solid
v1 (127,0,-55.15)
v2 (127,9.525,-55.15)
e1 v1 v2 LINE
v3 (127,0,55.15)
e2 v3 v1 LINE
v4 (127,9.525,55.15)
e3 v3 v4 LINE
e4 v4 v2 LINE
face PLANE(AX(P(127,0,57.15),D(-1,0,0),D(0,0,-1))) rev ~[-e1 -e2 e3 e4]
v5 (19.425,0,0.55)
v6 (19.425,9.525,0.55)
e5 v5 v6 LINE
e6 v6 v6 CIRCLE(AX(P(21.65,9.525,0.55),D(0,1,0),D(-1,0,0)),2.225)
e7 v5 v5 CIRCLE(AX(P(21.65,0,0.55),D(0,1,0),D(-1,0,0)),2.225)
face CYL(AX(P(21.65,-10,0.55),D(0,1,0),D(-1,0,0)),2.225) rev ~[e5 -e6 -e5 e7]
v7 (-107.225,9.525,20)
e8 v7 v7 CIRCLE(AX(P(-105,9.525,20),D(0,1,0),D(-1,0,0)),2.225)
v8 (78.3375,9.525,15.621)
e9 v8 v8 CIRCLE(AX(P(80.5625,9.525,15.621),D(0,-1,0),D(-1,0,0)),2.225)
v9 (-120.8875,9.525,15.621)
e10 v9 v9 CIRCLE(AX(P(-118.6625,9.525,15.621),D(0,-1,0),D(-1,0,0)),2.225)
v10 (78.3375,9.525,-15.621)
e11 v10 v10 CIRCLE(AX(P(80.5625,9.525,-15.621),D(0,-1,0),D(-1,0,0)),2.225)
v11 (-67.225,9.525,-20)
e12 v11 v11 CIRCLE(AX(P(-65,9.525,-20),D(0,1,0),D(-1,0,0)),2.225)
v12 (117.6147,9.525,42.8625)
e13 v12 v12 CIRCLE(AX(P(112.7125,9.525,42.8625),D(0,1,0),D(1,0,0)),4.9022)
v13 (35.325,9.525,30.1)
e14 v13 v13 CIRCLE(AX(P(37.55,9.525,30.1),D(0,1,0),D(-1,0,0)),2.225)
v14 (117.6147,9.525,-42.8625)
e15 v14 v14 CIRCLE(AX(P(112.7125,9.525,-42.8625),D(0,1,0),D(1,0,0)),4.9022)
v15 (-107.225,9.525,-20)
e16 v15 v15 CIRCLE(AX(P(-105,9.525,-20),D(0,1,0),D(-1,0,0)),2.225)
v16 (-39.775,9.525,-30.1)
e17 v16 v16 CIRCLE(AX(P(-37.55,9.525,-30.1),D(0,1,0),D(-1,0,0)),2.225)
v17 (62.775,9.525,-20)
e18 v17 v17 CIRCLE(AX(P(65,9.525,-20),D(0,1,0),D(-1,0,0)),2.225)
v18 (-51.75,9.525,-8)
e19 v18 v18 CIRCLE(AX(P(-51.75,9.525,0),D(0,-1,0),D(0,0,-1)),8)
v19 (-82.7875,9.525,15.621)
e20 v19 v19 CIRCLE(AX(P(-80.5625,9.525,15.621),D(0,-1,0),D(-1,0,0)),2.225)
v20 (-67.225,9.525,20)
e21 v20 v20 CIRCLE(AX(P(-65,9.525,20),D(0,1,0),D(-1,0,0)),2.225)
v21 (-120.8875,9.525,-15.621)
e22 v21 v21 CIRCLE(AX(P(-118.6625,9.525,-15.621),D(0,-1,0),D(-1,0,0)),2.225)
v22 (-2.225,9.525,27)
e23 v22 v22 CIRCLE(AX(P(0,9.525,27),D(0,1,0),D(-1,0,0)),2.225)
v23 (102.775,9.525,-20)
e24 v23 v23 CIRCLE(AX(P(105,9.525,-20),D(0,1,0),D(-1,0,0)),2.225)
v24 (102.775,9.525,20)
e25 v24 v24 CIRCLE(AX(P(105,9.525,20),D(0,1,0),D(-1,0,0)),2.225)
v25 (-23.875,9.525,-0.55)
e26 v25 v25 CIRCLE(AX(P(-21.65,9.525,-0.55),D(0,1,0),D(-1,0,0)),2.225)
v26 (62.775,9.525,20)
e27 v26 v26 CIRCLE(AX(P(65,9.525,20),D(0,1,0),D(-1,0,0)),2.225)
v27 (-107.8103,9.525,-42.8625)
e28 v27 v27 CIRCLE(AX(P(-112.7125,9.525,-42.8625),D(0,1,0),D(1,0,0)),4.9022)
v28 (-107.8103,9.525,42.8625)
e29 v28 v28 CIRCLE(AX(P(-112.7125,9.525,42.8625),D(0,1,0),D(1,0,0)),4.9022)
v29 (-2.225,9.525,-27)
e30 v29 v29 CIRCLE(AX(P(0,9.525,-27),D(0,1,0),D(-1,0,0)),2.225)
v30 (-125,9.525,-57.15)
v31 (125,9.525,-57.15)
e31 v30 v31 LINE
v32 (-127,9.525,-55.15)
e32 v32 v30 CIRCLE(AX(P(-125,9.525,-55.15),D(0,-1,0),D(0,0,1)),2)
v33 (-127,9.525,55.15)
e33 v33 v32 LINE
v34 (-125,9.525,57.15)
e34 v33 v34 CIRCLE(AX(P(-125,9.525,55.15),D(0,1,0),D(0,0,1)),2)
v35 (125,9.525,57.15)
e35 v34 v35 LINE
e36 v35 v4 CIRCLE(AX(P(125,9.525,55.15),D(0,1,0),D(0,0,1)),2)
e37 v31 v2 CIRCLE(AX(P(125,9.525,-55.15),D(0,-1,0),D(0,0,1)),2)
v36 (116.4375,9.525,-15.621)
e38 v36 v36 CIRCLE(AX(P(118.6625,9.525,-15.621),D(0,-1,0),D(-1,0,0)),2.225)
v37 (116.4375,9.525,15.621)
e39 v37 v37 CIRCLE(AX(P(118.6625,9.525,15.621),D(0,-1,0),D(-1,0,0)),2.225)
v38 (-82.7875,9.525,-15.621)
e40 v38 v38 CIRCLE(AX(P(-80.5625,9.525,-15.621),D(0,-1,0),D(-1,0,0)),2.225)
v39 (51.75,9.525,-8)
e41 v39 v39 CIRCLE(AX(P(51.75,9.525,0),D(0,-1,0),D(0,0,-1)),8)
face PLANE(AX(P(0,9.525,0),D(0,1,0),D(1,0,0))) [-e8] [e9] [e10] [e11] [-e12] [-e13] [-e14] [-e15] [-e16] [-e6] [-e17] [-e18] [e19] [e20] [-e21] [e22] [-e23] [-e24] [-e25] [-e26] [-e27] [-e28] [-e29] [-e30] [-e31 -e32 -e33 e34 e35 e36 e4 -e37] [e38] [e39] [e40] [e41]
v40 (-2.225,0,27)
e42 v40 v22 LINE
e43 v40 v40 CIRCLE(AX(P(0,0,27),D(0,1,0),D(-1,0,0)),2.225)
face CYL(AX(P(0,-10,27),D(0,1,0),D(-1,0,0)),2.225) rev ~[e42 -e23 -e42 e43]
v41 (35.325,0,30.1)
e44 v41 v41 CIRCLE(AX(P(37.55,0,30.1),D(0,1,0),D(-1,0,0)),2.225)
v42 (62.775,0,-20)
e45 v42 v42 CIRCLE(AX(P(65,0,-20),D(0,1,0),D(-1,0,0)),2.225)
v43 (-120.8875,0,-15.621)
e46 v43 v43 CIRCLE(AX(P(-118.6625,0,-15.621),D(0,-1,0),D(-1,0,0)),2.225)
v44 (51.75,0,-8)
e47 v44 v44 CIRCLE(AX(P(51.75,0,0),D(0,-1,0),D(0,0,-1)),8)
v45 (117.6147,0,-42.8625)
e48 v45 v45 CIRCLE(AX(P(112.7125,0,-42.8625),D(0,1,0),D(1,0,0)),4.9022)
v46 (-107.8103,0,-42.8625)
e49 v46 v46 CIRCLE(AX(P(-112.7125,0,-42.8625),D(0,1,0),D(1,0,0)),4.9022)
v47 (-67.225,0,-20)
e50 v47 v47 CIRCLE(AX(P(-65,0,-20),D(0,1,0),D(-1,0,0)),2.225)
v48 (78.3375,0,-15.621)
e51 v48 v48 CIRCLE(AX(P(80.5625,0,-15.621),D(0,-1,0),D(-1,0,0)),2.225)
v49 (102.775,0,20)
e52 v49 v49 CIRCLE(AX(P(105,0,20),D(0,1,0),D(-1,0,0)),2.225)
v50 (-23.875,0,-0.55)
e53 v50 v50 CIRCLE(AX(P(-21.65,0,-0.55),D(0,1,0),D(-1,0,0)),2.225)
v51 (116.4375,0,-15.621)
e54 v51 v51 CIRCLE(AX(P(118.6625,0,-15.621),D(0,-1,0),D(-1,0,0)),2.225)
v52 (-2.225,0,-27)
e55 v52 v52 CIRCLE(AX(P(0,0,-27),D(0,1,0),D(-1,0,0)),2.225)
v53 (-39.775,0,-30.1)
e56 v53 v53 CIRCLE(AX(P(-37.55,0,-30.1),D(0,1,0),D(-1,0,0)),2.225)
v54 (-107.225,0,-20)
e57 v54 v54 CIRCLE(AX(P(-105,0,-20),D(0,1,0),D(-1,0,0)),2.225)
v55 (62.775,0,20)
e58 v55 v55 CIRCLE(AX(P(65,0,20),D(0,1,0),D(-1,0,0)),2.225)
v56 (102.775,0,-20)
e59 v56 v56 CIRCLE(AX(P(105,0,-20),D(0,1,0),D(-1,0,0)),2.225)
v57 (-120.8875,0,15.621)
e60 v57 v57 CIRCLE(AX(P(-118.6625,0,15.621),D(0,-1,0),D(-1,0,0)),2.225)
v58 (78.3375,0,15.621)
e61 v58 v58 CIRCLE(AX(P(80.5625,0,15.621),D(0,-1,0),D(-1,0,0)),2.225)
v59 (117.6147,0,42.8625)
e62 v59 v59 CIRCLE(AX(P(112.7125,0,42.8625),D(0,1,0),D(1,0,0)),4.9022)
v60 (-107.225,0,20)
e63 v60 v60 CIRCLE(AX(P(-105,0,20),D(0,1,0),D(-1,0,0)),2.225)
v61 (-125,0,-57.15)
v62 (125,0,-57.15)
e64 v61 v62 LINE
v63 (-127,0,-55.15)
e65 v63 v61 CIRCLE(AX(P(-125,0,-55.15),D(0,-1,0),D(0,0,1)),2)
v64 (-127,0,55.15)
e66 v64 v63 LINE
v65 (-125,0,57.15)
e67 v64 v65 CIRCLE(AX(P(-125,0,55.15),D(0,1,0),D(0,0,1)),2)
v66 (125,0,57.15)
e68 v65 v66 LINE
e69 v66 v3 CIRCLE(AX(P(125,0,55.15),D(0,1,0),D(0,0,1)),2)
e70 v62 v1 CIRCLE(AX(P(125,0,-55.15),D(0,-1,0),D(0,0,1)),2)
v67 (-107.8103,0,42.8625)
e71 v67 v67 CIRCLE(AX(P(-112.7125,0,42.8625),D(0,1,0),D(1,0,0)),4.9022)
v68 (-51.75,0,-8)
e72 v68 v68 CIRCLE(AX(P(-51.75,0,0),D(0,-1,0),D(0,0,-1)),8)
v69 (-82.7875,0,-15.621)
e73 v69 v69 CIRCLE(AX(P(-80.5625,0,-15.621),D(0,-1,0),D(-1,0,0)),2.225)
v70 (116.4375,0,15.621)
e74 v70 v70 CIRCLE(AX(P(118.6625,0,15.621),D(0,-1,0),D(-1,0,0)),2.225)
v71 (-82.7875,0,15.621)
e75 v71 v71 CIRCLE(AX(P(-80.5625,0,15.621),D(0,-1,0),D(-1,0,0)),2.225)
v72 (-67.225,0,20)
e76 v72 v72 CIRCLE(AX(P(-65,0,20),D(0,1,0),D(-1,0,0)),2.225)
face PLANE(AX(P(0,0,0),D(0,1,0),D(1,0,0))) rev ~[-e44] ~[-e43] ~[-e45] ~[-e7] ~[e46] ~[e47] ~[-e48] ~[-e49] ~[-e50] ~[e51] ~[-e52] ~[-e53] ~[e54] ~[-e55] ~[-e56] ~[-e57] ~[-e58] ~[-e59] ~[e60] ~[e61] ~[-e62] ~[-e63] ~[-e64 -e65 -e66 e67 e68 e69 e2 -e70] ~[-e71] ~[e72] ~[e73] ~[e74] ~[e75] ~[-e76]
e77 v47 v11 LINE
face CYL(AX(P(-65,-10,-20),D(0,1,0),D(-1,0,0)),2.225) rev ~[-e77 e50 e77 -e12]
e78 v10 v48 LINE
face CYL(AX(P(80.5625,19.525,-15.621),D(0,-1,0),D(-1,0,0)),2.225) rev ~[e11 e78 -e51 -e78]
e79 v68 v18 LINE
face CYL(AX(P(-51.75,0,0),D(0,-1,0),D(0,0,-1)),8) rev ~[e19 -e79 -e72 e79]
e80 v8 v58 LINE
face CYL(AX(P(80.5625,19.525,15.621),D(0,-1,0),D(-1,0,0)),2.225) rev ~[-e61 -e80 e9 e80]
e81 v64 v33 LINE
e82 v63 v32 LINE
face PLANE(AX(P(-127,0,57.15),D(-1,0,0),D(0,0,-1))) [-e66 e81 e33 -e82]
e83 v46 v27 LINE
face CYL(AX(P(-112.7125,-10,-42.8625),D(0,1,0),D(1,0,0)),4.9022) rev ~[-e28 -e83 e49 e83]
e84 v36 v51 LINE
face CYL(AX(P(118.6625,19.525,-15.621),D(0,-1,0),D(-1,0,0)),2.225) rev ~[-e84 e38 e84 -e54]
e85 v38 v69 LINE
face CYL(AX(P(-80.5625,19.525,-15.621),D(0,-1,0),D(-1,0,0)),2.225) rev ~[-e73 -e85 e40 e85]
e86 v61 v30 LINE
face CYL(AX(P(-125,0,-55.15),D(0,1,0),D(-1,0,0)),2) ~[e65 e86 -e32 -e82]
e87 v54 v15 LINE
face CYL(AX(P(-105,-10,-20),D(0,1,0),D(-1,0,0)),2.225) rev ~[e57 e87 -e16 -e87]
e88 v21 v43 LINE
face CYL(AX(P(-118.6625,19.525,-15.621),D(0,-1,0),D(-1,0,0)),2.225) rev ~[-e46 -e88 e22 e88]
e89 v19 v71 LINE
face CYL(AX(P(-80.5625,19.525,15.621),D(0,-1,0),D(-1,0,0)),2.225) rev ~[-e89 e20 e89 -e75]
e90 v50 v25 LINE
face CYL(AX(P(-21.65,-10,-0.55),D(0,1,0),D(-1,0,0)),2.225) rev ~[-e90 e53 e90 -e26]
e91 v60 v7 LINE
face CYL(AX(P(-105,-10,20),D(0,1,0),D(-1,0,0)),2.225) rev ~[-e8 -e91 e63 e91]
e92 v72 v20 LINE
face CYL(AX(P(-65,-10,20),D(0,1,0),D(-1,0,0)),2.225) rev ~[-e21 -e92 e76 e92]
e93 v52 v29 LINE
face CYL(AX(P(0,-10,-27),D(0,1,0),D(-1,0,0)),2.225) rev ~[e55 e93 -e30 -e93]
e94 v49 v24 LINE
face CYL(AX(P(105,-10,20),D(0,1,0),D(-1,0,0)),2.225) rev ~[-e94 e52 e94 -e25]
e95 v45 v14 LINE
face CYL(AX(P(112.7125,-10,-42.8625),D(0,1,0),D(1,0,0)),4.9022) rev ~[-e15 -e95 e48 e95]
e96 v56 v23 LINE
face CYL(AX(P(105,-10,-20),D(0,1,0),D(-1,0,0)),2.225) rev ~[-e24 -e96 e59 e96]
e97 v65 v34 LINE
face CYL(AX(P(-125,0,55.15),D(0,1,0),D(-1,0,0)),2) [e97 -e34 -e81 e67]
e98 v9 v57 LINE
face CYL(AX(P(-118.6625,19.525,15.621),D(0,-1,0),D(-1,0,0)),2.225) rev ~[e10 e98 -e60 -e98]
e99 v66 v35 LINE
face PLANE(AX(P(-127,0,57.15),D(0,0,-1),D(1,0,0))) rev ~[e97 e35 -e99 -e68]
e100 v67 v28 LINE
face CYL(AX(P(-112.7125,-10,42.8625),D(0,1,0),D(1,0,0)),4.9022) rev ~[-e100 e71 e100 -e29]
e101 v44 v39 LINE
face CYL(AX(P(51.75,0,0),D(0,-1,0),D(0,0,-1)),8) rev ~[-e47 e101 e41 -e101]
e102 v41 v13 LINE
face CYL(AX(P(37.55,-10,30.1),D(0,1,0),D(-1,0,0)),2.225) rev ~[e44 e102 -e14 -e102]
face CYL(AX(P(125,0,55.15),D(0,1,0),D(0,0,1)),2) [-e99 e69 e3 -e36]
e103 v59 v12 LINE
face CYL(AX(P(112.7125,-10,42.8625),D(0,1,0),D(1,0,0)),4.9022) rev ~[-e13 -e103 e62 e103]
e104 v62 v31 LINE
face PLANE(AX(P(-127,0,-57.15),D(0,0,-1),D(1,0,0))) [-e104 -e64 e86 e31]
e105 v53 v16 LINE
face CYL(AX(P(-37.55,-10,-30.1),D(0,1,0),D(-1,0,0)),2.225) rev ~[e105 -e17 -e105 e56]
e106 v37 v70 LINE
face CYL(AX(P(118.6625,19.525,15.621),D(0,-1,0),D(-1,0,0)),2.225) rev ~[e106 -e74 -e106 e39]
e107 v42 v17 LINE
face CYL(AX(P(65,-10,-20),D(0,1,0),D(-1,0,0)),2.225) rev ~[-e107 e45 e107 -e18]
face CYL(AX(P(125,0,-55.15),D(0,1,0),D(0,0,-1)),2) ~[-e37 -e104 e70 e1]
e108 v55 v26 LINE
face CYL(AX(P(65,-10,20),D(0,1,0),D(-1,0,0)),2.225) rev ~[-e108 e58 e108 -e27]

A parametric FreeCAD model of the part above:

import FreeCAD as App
import Part
import Sketcher
from FreeCAD import Vector
Q = App.Units.Quantity


def edges_at(feature, points):
    """Names of the edges that pass closest to the given points."""
    edges = feature.Shape.Edges
    near = lambda p: min(range(len(edges)), key=lambda i: edges[i].distToShape(Part.Vertex(*p))[0])
    return sorted({f"Edge{near(p) + 1}" for p in points})

doc = App.newDocument("Part")
params = doc.addObject("Spreadsheet::Sheet", "Params")
for row, (alias, value) in enumerate([
    ("sketch1_width", "10 in"),
    ("sketch1_height", "4.5 in"),
    ("pad1_length", "0.375 in"),
    ("hole_diameter", "4.45 mm"),
    ("hole_depth", "10 mm"),
    ("sketch3_diameter", "0.386 in"),
    ("hole2_diameter", "0.386 in"),
    ("hole2_depth", "10 mm"),
    ("hole3_diameter", "4.45 mm"),
    ("hole3_depth", "10 mm"),
    ("fillet_radius", "2 mm"),
    ("hole4_diameter", "4.45 mm"),
    ("hole4_depth", "10 mm"),
], start=1):
    params.set(f"A{row}", alias)
    params.set(f"B{row}", "=" + value)
    params.setAlias(f"B{row}", alias)

body = doc.addObject("PartDesign::Body", "Body")

sketch1 = doc.addObject("Sketcher::SketchObject", "Sketch")
body.addObject(sketch1)
sketch1.AttachmentSupport = (doc.XZ_Plane, [""])
sketch1.MapMode = "FlatFace"
sketch1.addGeometry([
    Part.LineSegment(Vector(-127, -57, 0), Vector(-127, 57, 0)),
    Part.LineSegment(Vector(-127, 57, 0), Vector(127, 57, 0)),
    Part.LineSegment(Vector(127, 57, 0), Vector(127, -57, 0)),
    Part.LineSegment(Vector(127, -57, 0), Vector(-127, -57, 0)),
], False)
sketch1.addConstraint([
    Sketcher.Constraint("Coincident", 0, 2, 1, 1),
    Sketcher.Constraint("Coincident", 1, 2, 2, 1),
    Sketcher.Constraint("Coincident", 2, 2, 3, 1),
    Sketcher.Constraint("Coincident", 3, 2, 0, 1),
    Sketcher.Constraint("Vertical", 0),
    Sketcher.Constraint("Horizontal", 1),
    Sketcher.Constraint("Vertical", 2),
    Sketcher.Constraint("Horizontal", 3),
    Sketcher.Constraint("Symmetric", 0, 2, 2, 2, -1, 1),
    Sketcher.Constraint("DistanceX", 1, 1, 1, 2, Q("10 in")),
    Sketcher.Constraint("DistanceY", 0, 1, 0, 2, Q("4.5 in")),
])
sketch1.setExpression("Constraints[9]", "Params.sketch1_width")
sketch1.setExpression("Constraints[10]", "Params.sketch1_height")
pad1 = doc.addObject("PartDesign::Pad", "Pad")
body.addObject(pad1)
pad1.Profile = sketch1
pad1.setExpression("Length", "Params.pad1_length")
pad1.Reversed = True

sketch2 = doc.addObject("Sketcher::SketchObject", "Sketch001")
body.addObject(sketch2)
sketch2.AttachmentSupport = (doc.XZ_Plane, [""])
sketch2.MapMode = "FlatFace"
sketch2.AttachmentOffset = App.Placement(Vector(0, 0, -0.375 * 25.4), App.Rotation())
sketch2.addGeometry([
    Part.Circle(Vector(-80.6, 15.6, 0), Vector(0, 0, 1), 2.2),
    Part.Circle(Vector(-80.6, -15.6, 0), Vector(0, 0, 1), 2.2),
    Part.Circle(Vector(-118.7, 15.6, 0), Vector(0, 0, 1), 2.2),
    Part.Circle(Vector(-118.7, -15.6, 0), Vector(0, 0, 1), 2.2),
    Part.Circle(Vector(118.7, 15.6, 0), Vector(0, 0, 1), 2.2),
    Part.Circle(Vector(80.6, 15.6, 0), Vector(0, 0, 1), 2.2),
    Part.Circle(Vector(80.6, -15.6, 0), Vector(0, 0, 1), 2.2),
    Part.Circle(Vector(118.7, -15.6, 0), Vector(0, 0, 1), 2.2),
], False)
sketch2.addConstraint([
    Sketcher.Constraint("Equal", 0, 1),
    Sketcher.Constraint("Equal", 1, 2),
    Sketcher.Constraint("Equal", 2, 3),
    Sketcher.Constraint("Equal", 3, 4),
    Sketcher.Constraint("Equal", 4, 5),
    Sketcher.Constraint("Equal", 5, 6),
    Sketcher.Constraint("Equal", 6, 7),
    Sketcher.Constraint("Symmetric", 3, 3, 4, 3, -1, 1),
    Sketcher.Constraint("Symmetric", 1, 3, 5, 3, -1, 1),
    Sketcher.Constraint("Symmetric", 0, 3, 6, 3, -1, 1),
    Sketcher.Constraint("Symmetric", 2, 3, 7, 3, -1, 1),
    Sketcher.Constraint("Symmetric", 2, 3, 4, 3, -2),
    Sketcher.Constraint("Symmetric", 0, 3, 5, 3, -2),
    Sketcher.Constraint("Horizontal", 0, 3, 2, 3),
    Sketcher.Constraint("DistanceX", 2, 3, 0, 3, Q("1.5 in")),
    Sketcher.Constraint("Diameter", 0, 4.45),
    Sketcher.Constraint("DistanceY", 1, 3, 0, 3, Q("1.23 in")),
    Sketcher.Constraint("DistanceX", 0, 3, -1, 1, 80.5625),
])
doc.recompute()
hole = doc.addObject("PartDesign::Hole", "Hole")
body.addObject(hole)
hole.Profile = sketch2
hole.ThreadType = "None"
hole.setExpression("Diameter", "Params.hole_diameter")
hole.DepthType = "Dimension"
hole.setExpression("Depth", "Params.hole_depth")
hole.DrillPoint = "Angled"
hole.DrillPointAngle = 118
hole.Reversed = True

sketch3 = doc.addObject("Sketcher::SketchObject", "Sketch002")
body.addObject(sketch3)
sketch3.AttachmentSupport = (doc.XZ_Plane, [""])
sketch3.MapMode = "FlatFace"
sketch3.addGeometry([
    Part.Circle(Vector(112.7, -42.9, 0), Vector(0, 0, 1), 4.9),
    Part.Circle(Vector(112.7, 42.9, 0), Vector(0, 0, 1), 4.9),
    Part.Circle(Vector(-112.7, 42.9, 0), Vector(0, 0, 1), 4.9),
    Part.Circle(Vector(-112.7, -42.9, 0), Vector(0, 0, 1), 4.9),
], False)
sketch3.addConstraint([
    Sketcher.Constraint("Equal", 0, 1),
    Sketcher.Constraint("Equal", 1, 2),
    Sketcher.Constraint("Equal", 2, 3),
    Sketcher.Constraint("Symmetric", 0, 3, 2, 3, -1, 1),
    Sketcher.Constraint("Symmetric", 1, 3, 3, 3, -1, 1),
    Sketcher.Constraint("Symmetric", 1, 3, 2, 3, -2),
    Sketcher.Constraint("Diameter", 0, Q("0.386 in")),
    Sketcher.Constraint("DistanceX", -1, 1, 0, 3, Q("4.4375 in")),
    Sketcher.Constraint("DistanceY", 0, 3, -1, 1, Q("1.6875 in")),
])
sketch3.setExpression("Constraints[6]", "Params.sketch3_diameter")
doc.recompute()
hole2 = doc.addObject("PartDesign::Hole", "Hole001")
body.addObject(hole2)
hole2.Profile = sketch3
hole2.ThreadType = "None"
hole2.setExpression("Diameter", "Params.hole2_diameter")
hole2.DepthType = "Dimension"
hole2.setExpression("Depth", "Params.hole2_depth")
hole2.DrillPoint = "Angled"
hole2.DrillPointAngle = 118

sketch4 = doc.addObject("Sketcher::SketchObject", "Sketch003")
body.addObject(sketch4)
sketch4.AttachmentSupport = (doc.XZ_Plane, [""])
sketch4.MapMode = "FlatFace"
sketch4.addGeometry([
    Part.Circle(Vector(105, 20, 0), Vector(0, 0, 1), 2.2),
    Part.Circle(Vector(65, -20, 0), Vector(0, 0, 1), 2.2),
    Part.Circle(Vector(105, -20, 0), Vector(0, 0, 1), 2.2),
    Part.Circle(Vector(65, 20, 0), Vector(0, 0, 1), 2.2),
    Part.Circle(Vector(-65, -20, 0), Vector(0, 0, 1), 2.2),
    Part.Circle(Vector(-65, 20, 0), Vector(0, 0, 1), 2.2),
    Part.Circle(Vector(-105, 20, 0), Vector(0, 0, 1), 2.2),
    Part.Circle(Vector(-105, -20, 0), Vector(0, 0, 1), 2.2),
], False)
sketch4.addConstraint([
    Sketcher.Constraint("Equal", 0, 1),
    Sketcher.Constraint("Equal", 1, 2),
    Sketcher.Constraint("Equal", 2, 3),
    Sketcher.Constraint("Equal", 3, 4),
    Sketcher.Constraint("Equal", 4, 5),
    Sketcher.Constraint("Equal", 5, 6),
    Sketcher.Constraint("Equal", 6, 7),
    Sketcher.Constraint("Symmetric", 3, 3, 4, 3, -1, 1),
    Sketcher.Constraint("Symmetric", 1, 3, 5, 3, -1, 1),
    Sketcher.Constraint("Symmetric", 2, 3, 6, 3, -1, 1),
    Sketcher.Constraint("Symmetric", 0, 3, 7, 3, -1, 1),
    Sketcher.Constraint("Symmetric", 1, 3, 4, 3, -2),
    Sketcher.Constraint("Symmetric", 0, 3, 6, 3, -2),
    Sketcher.Constraint("Horizontal", 1, 3, 2, 3),
    Sketcher.Constraint("Diameter", 0, 4.45),
    Sketcher.Constraint("DistanceX", -1, 1, 0, 3, 105.0),
    Sketcher.Constraint("DistanceY", -1, 1, 0, 3, 20.0),
    Sketcher.Constraint("DistanceX", -1, 1, 1, 3, 65.0),
])
doc.recompute()
hole3 = doc.addObject("PartDesign::Hole", "Hole002")
body.addObject(hole3)
hole3.Profile = sketch4
hole3.ThreadType = "None"
hole3.setExpression("Diameter", "Params.hole3_diameter")
hole3.DepthType = "Dimension"
hole3.setExpression("Depth", "Params.hole3_depth")
hole3.DrillPoint = "Angled"
hole3.DrillPointAngle = 118
doc.recompute()

fillet = doc.addObject("PartDesign::Fillet", "Fillet")
body.addObject(fillet)
fillet.Base = (hole3, edges_at(hole3, [
    (-127, 4.763, -57.15),
    (127, 4.763, -57.15),
    (127, 4.763, 57.15),
    (-127, 4.763, 57.15),
]))
fillet.setExpression("Radius", "Params.fillet_radius")

sketch5 = doc.addObject("Sketcher::SketchObject", "Sketch004")
body.addObject(sketch5)
sketch5.AttachmentSupport = (doc.XZ_Plane, [""])
sketch5.MapMode = "FlatFace"
sketch5.addGeometry([
    Part.Circle(Vector(0, -27, 0), Vector(0, 0, 1), 2.2),
    Part.Circle(Vector(-21.6, -0.6, 0), Vector(0, 0, 1), 2.2),
    Part.Circle(Vector(-37.5, -30.1, 0), Vector(0, 0, 1), 2.2),
    Part.Circle(Vector(37.5, 30.1, 0), Vector(0, 0, 1), 2.2),
    Part.Circle(Vector(21.6, 0.6, 0), Vector(0, 0, 1), 2.2),
    Part.Circle(Vector(0, 27, 0), Vector(0, 0, 1), 2.2),
], False)
sketch5.addConstraint([
    Sketcher.Constraint("Equal", 0, 1),
    Sketcher.Constraint("Equal", 1, 2),
    Sketcher.Constraint("Equal", 2, 3),
    Sketcher.Constraint("Equal", 3, 4),
    Sketcher.Constraint("Equal", 4, 5),
    Sketcher.Constraint("Symmetric", 2, 3, 3, 3, -1, 1),
    Sketcher.Constraint("Symmetric", 1, 3, 4, 3, -1, 1),
    Sketcher.Constraint("Symmetric", 0, 3, 5, 3, -1, 1),
    Sketcher.Constraint("PointOnObject", 0, 3, -2),
    Sketcher.Constraint("Diameter", 0, 4.45),
    Sketcher.Constraint("DistanceY", 0, 3, -1, 1, 27.0),
    Sketcher.Constraint("DistanceX", 1, 3, -1, 1, 21.65),
    Sketcher.Constraint("DistanceY", 1, 3, -1, 1, 0.55),
    Sketcher.Constraint("DistanceX", 2, 3, -1, 1, 37.55),
    Sketcher.Constraint("DistanceY", 2, 3, -1, 1, 30.1),
])
doc.recompute()
hole4 = doc.addObject("PartDesign::Hole", "Hole003")
body.addObject(hole4)
hole4.Profile = sketch5
hole4.ThreadType = "None"
hole4.setExpression("Diameter", "Params.hole4_diameter")
hole4.DepthType = "Dimension"
hole4.setExpression("Depth", "Params.hole4_depth")
hole4.DrillPoint = "Angled"
hole4.DrillPointAngle = 118

sketch6 = doc.addObject("Sketcher::SketchObject", "Sketch005")
body.addObject(sketch6)
sketch6.AttachmentSupport = (doc.XZ_Plane, [""])
sketch6.MapMode = "FlatFace"
sketch6.addGeometry([
    Part.Circle(Vector(-52, 0, 0), Vector(0, 0, 1), 8),
    Part.Circle(Vector(52, 0, 0), Vector(0, 0, 1), 8),
], False)
sketch6.addConstraint([
    Sketcher.Constraint("Equal", 0, 1),
    Sketcher.Constraint("Symmetric", 0, 3, 1, 3, -1, 1),
    Sketcher.Constraint("PointOnObject", 0, 3, -1),
    Sketcher.Constraint("Diameter", 0, 16.0),
    Sketcher.Constraint("DistanceX", 0, 3, -1, 1, 51.75),
])
pocket1 = doc.addObject("PartDesign::Pocket", "Pocket")
body.addObject(pocket1)
pocket1.Profile = sketch6
pocket1.Type = "ThroughAll"

doc.recompute()
